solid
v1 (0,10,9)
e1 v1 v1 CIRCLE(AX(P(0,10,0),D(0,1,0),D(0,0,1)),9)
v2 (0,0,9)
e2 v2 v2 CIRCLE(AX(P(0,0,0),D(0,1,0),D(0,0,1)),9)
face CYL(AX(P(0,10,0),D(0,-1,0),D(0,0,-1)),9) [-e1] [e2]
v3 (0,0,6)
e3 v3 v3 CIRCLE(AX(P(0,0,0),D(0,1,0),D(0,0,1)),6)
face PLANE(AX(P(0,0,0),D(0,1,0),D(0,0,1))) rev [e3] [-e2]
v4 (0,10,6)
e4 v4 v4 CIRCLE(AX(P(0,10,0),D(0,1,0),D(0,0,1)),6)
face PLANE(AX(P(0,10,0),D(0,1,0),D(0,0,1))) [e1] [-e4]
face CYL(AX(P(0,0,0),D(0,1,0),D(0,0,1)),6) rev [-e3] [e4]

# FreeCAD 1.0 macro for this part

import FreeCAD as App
import Part
import Sketcher

doc = App.newDocument("Part")
params = doc.addObject("Spreadsheet::Sheet", "Params")
for row, (alias, value) in enumerate([
    ("sketch1_diameter", "18 mm"),
    ("pad1_length", "10 mm"),
    ("sketch2_diameter", "12 mm"),
    ("pocket1_length", "10 mm"),
], start=1):
    params.set(f"A{row}", alias)
    params.set(f"B{row}", "=" + value)
    params.setAlias(f"B{row}", alias)

body = doc.addObject("PartDesign::Body", "Body")

sketch1 = body.newObject("Sketcher::SketchObject", "Sketch")
sketch1.AttachmentSupport = (doc.getObject("XZ_Plane"), [""])
sketch1.MapMode = "FlatFace"
sketch1.addGeometry(Part.Circle(App.Vector(0, 0, 0), App.Vector(0, 0, 1), 9), False)
sketch1.addConstraint(Sketcher.Constraint("Coincident", 0, 3, -1, 1))
sketch1.addConstraint(Sketcher.Constraint("Diameter", 0, 18.0))
sketch1.setExpression("Constraints[1]", "Params.sketch1_diameter")
pad1 = body.newObject("PartDesign::Pad", "Pad")
pad1.Profile = sketch1
pad1.setExpression("Length", "Params.pad1_length")
pad1.Reversed = True

sketch2 = body.newObject("Sketcher::SketchObject", "Sketch001")
sketch2.AttachmentSupport = (doc.getObject("XZ_Plane"), [""])
sketch2.MapMode = "FlatFace"
sketch2.AttachmentOffset = App.Placement(App.Vector(0, 0, -10), App.Rotation())
sketch2.addGeometry(Part.Circle(App.Vector(0, 0, 0), App.Vector(0, 0, 1), 6), False)
sketch2.addConstraint(Sketcher.Constraint("Coincident", 0, 3, -1, 1))
sketch2.addConstraint(Sketcher.Constraint("Diameter", 0, 12.0))
sketch2.setExpression("Constraints[1]", "Params.sketch2_diameter")
pocket1 = body.newObject("PartDesign::Pocket", "Pocket")
pocket1.Profile = sketch2
pocket1.setExpression("Length", "Params.pocket1_length")
pocket1.Reversed = True

doc.recompute()
